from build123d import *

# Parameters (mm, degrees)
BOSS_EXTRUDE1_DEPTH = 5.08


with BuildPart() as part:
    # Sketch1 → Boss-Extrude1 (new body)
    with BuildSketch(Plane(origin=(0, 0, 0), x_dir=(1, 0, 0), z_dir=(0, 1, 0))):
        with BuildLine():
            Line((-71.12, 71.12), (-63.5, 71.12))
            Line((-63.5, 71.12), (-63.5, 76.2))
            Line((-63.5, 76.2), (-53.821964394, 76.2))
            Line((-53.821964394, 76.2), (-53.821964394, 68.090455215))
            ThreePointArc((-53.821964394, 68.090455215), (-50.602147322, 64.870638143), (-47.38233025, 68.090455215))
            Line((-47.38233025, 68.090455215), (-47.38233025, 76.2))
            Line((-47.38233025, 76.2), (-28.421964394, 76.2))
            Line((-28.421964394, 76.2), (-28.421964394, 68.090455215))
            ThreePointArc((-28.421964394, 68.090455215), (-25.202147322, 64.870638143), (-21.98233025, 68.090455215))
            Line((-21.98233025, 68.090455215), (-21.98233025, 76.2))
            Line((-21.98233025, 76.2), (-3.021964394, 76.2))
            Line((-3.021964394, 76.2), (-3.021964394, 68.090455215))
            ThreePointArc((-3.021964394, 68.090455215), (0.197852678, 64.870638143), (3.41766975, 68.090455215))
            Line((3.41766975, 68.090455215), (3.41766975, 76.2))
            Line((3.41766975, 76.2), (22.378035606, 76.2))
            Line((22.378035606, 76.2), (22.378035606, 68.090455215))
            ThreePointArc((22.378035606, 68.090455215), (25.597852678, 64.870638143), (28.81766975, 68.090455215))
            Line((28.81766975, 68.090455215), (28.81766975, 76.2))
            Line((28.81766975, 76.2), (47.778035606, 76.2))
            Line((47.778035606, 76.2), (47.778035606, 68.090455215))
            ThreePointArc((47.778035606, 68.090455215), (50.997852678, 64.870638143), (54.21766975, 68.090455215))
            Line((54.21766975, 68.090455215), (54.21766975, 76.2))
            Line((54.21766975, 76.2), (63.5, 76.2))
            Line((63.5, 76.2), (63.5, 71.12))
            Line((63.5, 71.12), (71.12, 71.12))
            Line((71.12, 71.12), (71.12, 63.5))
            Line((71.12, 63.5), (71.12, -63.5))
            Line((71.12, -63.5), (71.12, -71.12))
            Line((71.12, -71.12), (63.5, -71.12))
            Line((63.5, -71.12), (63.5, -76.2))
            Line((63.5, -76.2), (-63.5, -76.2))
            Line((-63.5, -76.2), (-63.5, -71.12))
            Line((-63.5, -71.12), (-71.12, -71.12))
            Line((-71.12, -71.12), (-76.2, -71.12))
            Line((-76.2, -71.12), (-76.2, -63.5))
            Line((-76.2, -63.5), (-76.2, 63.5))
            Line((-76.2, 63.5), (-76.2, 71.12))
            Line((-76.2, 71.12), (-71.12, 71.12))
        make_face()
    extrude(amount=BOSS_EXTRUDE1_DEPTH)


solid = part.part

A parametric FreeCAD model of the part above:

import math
import FreeCAD as App
import Part
import Sketcher
Q = App.Units.Quantity

doc = App.newDocument("Part")
body = doc.addObject("PartDesign::Body", "Body")

# Sketch on XZ plane
sketch1 = doc.addObject("Sketcher::SketchObject", "Sketch")
body.addObject(sketch1)
sketch1.AttachmentSupport = (doc.XZ_Plane, [""])
sketch1.MapMode = "FlatFace"
sketch1.addGeometry([
    Part.LineSegment(App.Vector(-63.5, -76.2, 0), App.Vector(-63.5, -71.1, 0)),  # 0
    Part.LineSegment(App.Vector(-63.5, -71.1, 0), App.Vector(-76.2, -71.1, 0)),  # 1
    Part.LineSegment(App.Vector(-76.2, -71.1, 0), App.Vector(-76.2, 71.1, 0)),  # 2
    Part.LineSegment(App.Vector(-76.2, 71.1, 0), App.Vector(-63.5, 71.1, 0)),  # 3
    Part.LineSegment(App.Vector(-63.5, 71.1, 0), App.Vector(-63.5, 76.2, 0)),  # 4
    Part.LineSegment(App.Vector(-63.5, 76.2, 0), App.Vector(63.5, 76.2, 0)),  # 5
    Part.LineSegment(App.Vector(63.5, 76.2, 0), App.Vector(63.5, 71.1, 0)),  # 6
    Part.LineSegment(App.Vector(63.5, 71.1, 0), App.Vector(71.1, 71.1, 0)),  # 7
    Part.LineSegment(App.Vector(71.1, 71.1, 0), App.Vector(71.1, -71.1, 0)),  # 8
    Part.LineSegment(App.Vector(71.1, -71.1, 0), App.Vector(63.5, -71.1, 0)),  # 9
    Part.LineSegment(App.Vector(63.5, -71.1, 0), App.Vector(63.5, -76.2, 0)),  # 10
    Part.LineSegment(App.Vector(63.5, -76.2, 0), App.Vector(54.2, -76.2, 0)),  # 11
    Part.LineSegment(App.Vector(54.2, -76.2, 0), App.Vector(54.2, -68.1, 0)),  # 12
    Part.ArcOfCircle(Part.Circle(App.Vector(51, -68.1, 0), App.Vector(0, 0, 1), 3.2), math.radians(0), math.radians(180)),  # 13
    Part.LineSegment(App.Vector(47.8, -68.1, 0), App.Vector(47.8, -76.2, 0)),  # 14
    Part.LineSegment(App.Vector(47.8, -76.2, 0), App.Vector(28.8, -76.2, 0)),  # 15
    Part.LineSegment(App.Vector(28.8, -76.2, 0), App.Vector(28.8, -68.1, 0)),  # 16
    Part.ArcOfCircle(Part.Circle(App.Vector(25.6, -68.1, 0), App.Vector(0, 0, 1), 3.2), math.radians(0), math.radians(180)),  # 17
    Part.LineSegment(App.Vector(22.4, -68.1, 0), App.Vector(22.4, -76.2, 0)),  # 18
    Part.LineSegment(App.Vector(22.4, -76.2, 0), App.Vector(3.4, -76.2, 0)),  # 19
    Part.LineSegment(App.Vector(3.4, -76.2, 0), App.Vector(3.4, -68.1, 0)),  # 20
    Part.ArcOfCircle(Part.Circle(App.Vector(0.2, -68.1, 0), App.Vector(0, 0, 1), 3.2), math.radians(0), math.radians(180)),  # 21
    Part.LineSegment(App.Vector(-3, -68.1, 0), App.Vector(-3, -76.2, 0)),  # 22
    Part.LineSegment(App.Vector(-3, -76.2, 0), App.Vector(-22, -76.2, 0)),  # 23
    Part.LineSegment(App.Vector(-22, -76.2, 0), App.Vector(-22, -68.1, 0)),  # 24
    Part.ArcOfCircle(Part.Circle(App.Vector(-25.2, -68.1, 0), App.Vector(0, 0, 1), 3.2), math.radians(0), math.radians(180)),  # 25
    Part.LineSegment(App.Vector(-28.4, -68.1, 0), App.Vector(-28.4, -76.2, 0)),  # 26
    Part.LineSegment(App.Vector(-28.4, -76.2, 0), App.Vector(-47.4, -76.2, 0)),  # 27
    Part.LineSegment(App.Vector(-47.4, -76.2, 0), App.Vector(-47.4, -68.1, 0)),  # 28
    Part.ArcOfCircle(Part.Circle(App.Vector(-50.6, -68.1, 0), App.Vector(0, 0, 1), 3.2), math.radians(0), math.radians(180)),  # 29
    Part.LineSegment(App.Vector(-53.8, -68.1, 0), App.Vector(-53.8, -76.2, 0)),  # 30
    Part.LineSegment(App.Vector(-53.8, -76.2, 0), App.Vector(-63.5, -76.2, 0)),  # 31
], False)
sketch1.addConstraint([
    Sketcher.Constraint("Coincident", 0, 2, 1, 1),
    Sketcher.Constraint("Coincident", 1, 2, 2, 1),
    Sketcher.Constraint("Coincident", 2, 2, 3, 1),
    Sketcher.Constraint("Coincident", 3, 2, 4, 1),
    Sketcher.Constraint("Coincident", 4, 2, 5, 1),
    Sketcher.Constraint("Coincident", 5, 2, 6, 1),
    Sketcher.Constraint("Coincident", 6, 2, 7, 1),
    Sketcher.Constraint("Coincident", 7, 2, 8, 1),
    Sketcher.Constraint("Coincident", 8, 2, 9, 1),
    Sketcher.Constraint("Coincident", 9, 2, 10, 1),
    Sketcher.Constraint("Coincident", 10, 2, 11, 1),
    Sketcher.Constraint("Coincident", 11, 2, 12, 1),
    Sketcher.Constraint("Tangent", 12, 2, 13, 1),
    Sketcher.Constraint("Tangent", 13, 2, 14, 1),
    Sketcher.Constraint("Coincident", 14, 2, 15, 1),
    Sketcher.Constraint("Coincident", 15, 2, 16, 1),
    Sketcher.Constraint("Tangent", 16, 2, 17, 1),
    Sketcher.Constraint("Tangent", 17, 2, 18, 1),
    Sketcher.Constraint("Coincident", 18, 2, 19, 1),
    Sketcher.Constraint("Coincident", 19, 2, 20, 1),
    Sketcher.Constraint("Tangent", 20, 2, 21, 1),
    Sketcher.Constraint("Tangent", 21, 2, 22, 1),
    Sketcher.Constraint("Coincident", 22, 2, 23, 1),
    Sketcher.Constraint("Coincident", 23, 2, 24, 1),
    Sketcher.Constraint("Tangent", 24, 2, 25, 1),
    Sketcher.Constraint("Tangent", 25, 2, 26, 1),
    Sketcher.Constraint("Coincident", 26, 2, 27, 1),
    Sketcher.Constraint("Coincident", 27, 2, 28, 1),
    Sketcher.Constraint("Tangent", 28, 2, 29, 1),
    Sketcher.Constraint("Tangent", 29, 2, 30, 1),
    Sketcher.Constraint("Coincident", 30, 2, 31, 1),
    Sketcher.Constraint("Coincident", 31, 2, 0, 1),
    Sketcher.Constraint("Vertical", 0),
    Sketcher.Constraint("Horizontal", 1),
    Sketcher.Constraint("Vertical", 2),
    Sketcher.Constraint("Horizontal", 3),
    Sketcher.Constraint("Vertical", 4),
    Sketcher.Constraint("Horizontal", 5),
    Sketcher.Constraint("Vertical", 6),
    Sketcher.Constraint("Horizontal", 7),
    Sketcher.Constraint("Vertical", 8),
    Sketcher.Constraint("Horizontal", 9),
    Sketcher.Constraint("Vertical", 10),
    Sketcher.Constraint("Horizontal", 11),
    Sketcher.Constraint("Vertical", 12),
    Sketcher.Constraint("Vertical", 14),
    Sketcher.Constraint("Horizontal", 15),
    Sketcher.Constraint("Vertical", 16),
    Sketcher.Constraint("Vertical", 18),
    Sketcher.Constraint("Horizontal", 19),
    Sketcher.Constraint("Vertical", 20),
    Sketcher.Constraint("Vertical", 22),
    Sketcher.Constraint("Horizontal", 23),
    Sketcher.Constraint("Vertical", 24),
    Sketcher.Constraint("Vertical", 26),
    Sketcher.Constraint("Horizontal", 27),
    Sketcher.Constraint("Vertical", 28),
    Sketcher.Constraint("Vertical", 30),
    Sketcher.Constraint("Horizontal", 31),
    Sketcher.Constraint("Equal", 13, 17),
    Sketcher.Constraint("Equal", 17, 21),
    Sketcher.Constraint("Equal", 21, 25),
    Sketcher.Constraint("Equal", 25, 29),
    Sketcher.Constraint("Symmetric", 0, 2, 6, 2, -1, 1),
    Sketcher.Constraint("Symmetric", 3, 2, 9, 2, -1, 1),
    Sketcher.Constraint("Symmetric", 3, 2, 6, 2, -2),
    Sketcher.Constraint("Horizontal", 13, 3, 17, 3),
    Sketcher.Constraint("Horizontal", 17, 3, 21, 3),
    Sketcher.Constraint("Horizontal", 21, 3, 25, 3),
    Sketcher.Constraint("Horizontal", 25, 3, 29, 3),
    Sketcher.Constraint("Horizontal", 11, 2, 14, 2),
    Sketcher.Constraint("Horizontal", 15, 2, 18, 2),
    Sketcher.Constraint("Horizontal", 19, 2, 22, 2),
    Sketcher.Constraint("Horizontal", 23, 2, 26, 2),
    Sketcher.Constraint("Horizontal", 27, 2, 30, 2),
    Sketcher.Constraint("Equal", 15, 19),
    Sketcher.Constraint("Equal", 19, 23),
    Sketcher.Constraint("Equal", 23, 27),
    Sketcher.Constraint("Equal", 0, 4),
    Sketcher.Constraint("DistanceX", 5, 1, 5, 2, Q("5 in")),
    Sketcher.Constraint("DistanceX", 1, 2, 1, 1, Q("0.5 in")),
    Sketcher.Constraint("DistanceX", 7, 1, 7, 2, Q("0.3 in")),
    Sketcher.Constraint("DistanceY", 0, 1, 0, 2, Q("0.2 in")),
    Sketcher.Constraint("DistanceY", 2, 1, 2, 2, Q("5.6 in")),
    Sketcher.Constraint("DistanceX", 17, 3, 13, 3, Q("1 in")),
    Sketcher.Constraint("Radius", 13, Q("3.219817 mm")),
    Sketcher.Constraint("DistanceX", 11, 2, 11, 1, Q("9.28233 mm")),
    Sketcher.Constraint("DistanceY", 12, 1, 12, 2, Q("8.109545 mm")),
])
pad1 = doc.addObject("PartDesign::Pad", "Pad")
body.addObject(pad1)
pad1.Profile = sketch1
pad1.Length = Q("0.2 in")
pad1.Reversed = True

doc.recompute()
